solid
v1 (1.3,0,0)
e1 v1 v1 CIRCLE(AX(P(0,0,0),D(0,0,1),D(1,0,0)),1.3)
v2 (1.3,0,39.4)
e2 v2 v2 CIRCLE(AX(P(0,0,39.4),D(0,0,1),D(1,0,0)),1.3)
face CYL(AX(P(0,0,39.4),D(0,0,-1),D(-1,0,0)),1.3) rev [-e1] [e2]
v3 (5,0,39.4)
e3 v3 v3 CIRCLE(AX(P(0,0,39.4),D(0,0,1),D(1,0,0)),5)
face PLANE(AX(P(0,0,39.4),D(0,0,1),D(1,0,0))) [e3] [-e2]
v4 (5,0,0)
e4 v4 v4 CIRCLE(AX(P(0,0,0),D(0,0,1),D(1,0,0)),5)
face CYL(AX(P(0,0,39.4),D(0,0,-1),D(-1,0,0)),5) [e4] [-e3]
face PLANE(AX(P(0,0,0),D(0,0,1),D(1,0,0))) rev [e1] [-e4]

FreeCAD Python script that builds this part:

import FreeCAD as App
import Part
import Sketcher
Q = App.Units.Quantity

doc = App.newDocument("Part")
params = doc.addObject("Spreadsheet::Sheet", "Params")
for row, (alias, value) in enumerate([
    ("sketch1_diameter", "10 mm"),
    ("sketch1_diameter2", "2.6 mm"),
    ("pad1_length", "39.4 mm"),
], start=1):
    params.set(f"A{row}", alias)
    params.set(f"B{row}", "=" + value)
    params.setAlias(f"B{row}", alias)

body = doc.addObject("PartDesign::Body", "Body")

# Sketch on XY plane
sketch1 = body.newObject("Sketcher::SketchObject", "Sketch")
sketch1.AttachmentSupport = (doc.getObject("XY_Plane"), [""])
sketch1.MapMode = "FlatFace"
sketch1.addGeometry([
    Part.Circle(App.Vector(0, 0, 0), App.Vector(0, 0, 1), 5),
    Part.Circle(App.Vector(0, 0, 0), App.Vector(0, 0, 1), 1.3),
], False)
sketch1.addConstraint([
    Sketcher.Constraint("Coincident", 0, 3, -1, 1),
    Sketcher.Constraint("Coincident", 1, 3, -1, 1),
    Sketcher.Constraint("Diameter", 0, Q("10 mm")),
    Sketcher.Constraint("Diameter", 1, Q("2.6 mm")),
])
sketch1.setExpression("Constraints[2]", "Params.sketch1_diameter")
sketch1.setExpression("Constraints[3]", "Params.sketch1_diameter2")
pad1 = body.newObject("PartDesign::Pad", "Pad")
pad1.Profile = sketch1
pad1.setExpression("Length", "Params.pad1_length")

doc.recompute()
